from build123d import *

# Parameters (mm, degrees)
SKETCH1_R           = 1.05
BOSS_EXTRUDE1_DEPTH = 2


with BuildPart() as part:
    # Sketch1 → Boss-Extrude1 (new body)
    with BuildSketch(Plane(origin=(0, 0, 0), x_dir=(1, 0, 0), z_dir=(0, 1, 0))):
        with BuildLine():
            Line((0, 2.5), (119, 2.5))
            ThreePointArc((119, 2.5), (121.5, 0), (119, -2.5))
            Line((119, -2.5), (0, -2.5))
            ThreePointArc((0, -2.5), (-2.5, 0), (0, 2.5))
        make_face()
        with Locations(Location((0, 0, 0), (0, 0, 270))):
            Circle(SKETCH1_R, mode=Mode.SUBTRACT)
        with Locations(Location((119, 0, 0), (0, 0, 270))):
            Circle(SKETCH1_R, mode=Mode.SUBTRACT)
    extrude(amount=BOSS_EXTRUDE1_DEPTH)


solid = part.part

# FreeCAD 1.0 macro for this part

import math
import FreeCAD as App
import Part
import Sketcher

V = App.Vector

doc = App.newDocument("Part")
params = doc.addObject("Spreadsheet::Sheet", "Params")
for row, (alias, value) in enumerate([
    ("sketch1_diameter", "2.1 mm"),
    ("sketch1_radius", "2.5 mm"),
    ("sketch1_width", "119 mm"),
    ("pad1_length", "2 mm"),
], start=1):
    params.set(f"A{row}", alias)
    params.set(f"B{row}", "=" + value)
    params.setAlias(f"B{row}", alias)

body = doc.addObject("PartDesign::Body", "Body")

# Sketch on XZ plane
sketch1 = body.newObject("Sketcher::SketchObject", "Sketch")
sketch1.AttachmentSupport = (doc.getObject("XZ_Plane"), [""])
sketch1.MapMode = "FlatFace"
sketch1.addGeometry(Part.LineSegment(V(119, -2.5, 0), V(0, -2.5, 0)), False)
sketch1.addGeometry(Part.ArcOfCircle(Part.Circle(V(0, 0, 0), V(0, 0, 1), 2.5), math.radians(90), math.radians(270)), False)
sketch1.addGeometry(Part.LineSegment(V(0, 2.5, 0), V(119, 2.5, 0)), False)
sketch1.addGeometry(Part.ArcOfCircle(Part.Circle(V(119, 0, 0), V(0, 0, 1), 2.5), math.radians(-90), math.radians(90)), False)
sketch1.addGeometry(Part.Circle(V(119, 0, 0), V(0, 0, 1), 1.1), False)
sketch1.addGeometry(Part.Circle(V(0, 0, 0), V(0, 0, 1), 1.1), False)
sketch1.addConstraint(Sketcher.Constraint("Tangent", 0, 2, 1, 2))
sketch1.addConstraint(Sketcher.Constraint("Tangent", 1, 1, 2, 1))
sketch1.addConstraint(Sketcher.Constraint("Tangent", 2, 2, 3, 2))
sketch1.addConstraint(Sketcher.Constraint("Tangent", 3, 1, 0, 1))
sketch1.addConstraint(Sketcher.Constraint("Horizontal", 0))
sketch1.addConstraint(Sketcher.Constraint("Horizontal", 2))
sketch1.addConstraint(Sketcher.Constraint("Coincident", 1, 3, -1, 1))
sketch1.addConstraint(Sketcher.Constraint("Coincident", 5, 3, -1, 1))
sketch1.addConstraint(Sketcher.Constraint("Coincident", 4, 3, 3, 3))
sketch1.addConstraint(Sketcher.Constraint("Equal", 4, 5))
sketch1.addConstraint(Sketcher.Constraint("Diameter", 4, 2.1))
sketch1.addConstraint(Sketcher.Constraint("Radius", 1, 2.5))
sketch1.addConstraint(Sketcher.Constraint("DistanceX", 0, 2, 0, 1, 119.0))
sketch1.setExpression("Constraints[10]", "Params.sketch1_diameter")
sketch1.setExpression("Constraints[11]", "Params.sketch1_radius")
sketch1.setExpression("Constraints[12]", "Params.sketch1_width")
pad1 = body.newObject("PartDesign::Pad", "Pad")
pad1.Profile = sketch1
pad1.setExpression("Length", "Params.pad1_length")
pad1.Reversed = True

doc.recompute()
